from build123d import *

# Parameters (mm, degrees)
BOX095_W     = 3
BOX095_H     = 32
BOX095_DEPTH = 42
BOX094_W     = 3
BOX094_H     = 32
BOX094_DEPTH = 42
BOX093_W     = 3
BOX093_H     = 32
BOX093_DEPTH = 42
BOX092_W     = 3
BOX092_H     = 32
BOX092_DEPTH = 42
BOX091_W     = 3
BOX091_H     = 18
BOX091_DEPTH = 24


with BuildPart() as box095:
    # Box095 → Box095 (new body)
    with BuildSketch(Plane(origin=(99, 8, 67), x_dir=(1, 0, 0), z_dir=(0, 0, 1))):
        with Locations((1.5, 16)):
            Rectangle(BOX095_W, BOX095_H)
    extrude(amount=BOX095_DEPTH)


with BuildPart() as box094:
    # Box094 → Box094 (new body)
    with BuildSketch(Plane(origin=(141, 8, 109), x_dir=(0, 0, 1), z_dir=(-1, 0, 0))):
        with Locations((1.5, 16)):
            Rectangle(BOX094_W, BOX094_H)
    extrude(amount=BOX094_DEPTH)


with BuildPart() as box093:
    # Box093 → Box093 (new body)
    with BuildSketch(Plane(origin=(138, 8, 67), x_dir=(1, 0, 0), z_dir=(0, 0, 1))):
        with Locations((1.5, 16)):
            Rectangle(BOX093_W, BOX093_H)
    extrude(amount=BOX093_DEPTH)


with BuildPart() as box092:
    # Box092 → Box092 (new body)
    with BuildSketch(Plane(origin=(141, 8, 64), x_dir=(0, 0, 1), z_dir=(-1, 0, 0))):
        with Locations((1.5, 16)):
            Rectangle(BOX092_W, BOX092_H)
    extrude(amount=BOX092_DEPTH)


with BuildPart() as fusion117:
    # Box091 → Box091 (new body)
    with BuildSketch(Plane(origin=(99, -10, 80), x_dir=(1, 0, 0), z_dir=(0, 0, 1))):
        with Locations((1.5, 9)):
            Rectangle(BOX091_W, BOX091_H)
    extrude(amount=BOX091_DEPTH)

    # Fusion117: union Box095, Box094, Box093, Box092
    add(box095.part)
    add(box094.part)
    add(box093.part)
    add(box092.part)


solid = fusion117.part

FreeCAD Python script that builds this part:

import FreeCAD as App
import Part
import Sketcher
from FreeCAD import Vector
Q = App.Units.Quantity


def add_polygon(sketch, points):
    """Adds a closed chain of lines whose ends are joined by coincident constraints."""
    first, n = sketch.GeometryCount, len(points)
    for a, b in zip(points, points[1:] + points[:1]):
        sketch.addGeometry(Part.LineSegment(App.Vector(*a, 0), App.Vector(*b, 0)), False)
    for i in range(n):
        sketch.addConstraint(Sketcher.Constraint("Coincident", first + i, 2, first + (i + 1) % n, 1))

doc = App.newDocument("Part")
body = doc.addObject("PartDesign::Body", "Body")

# Sketch on XY plane
sketch1 = doc.addObject("Sketcher::SketchObject", "Sketch")
body.addObject(sketch1)
sketch1.AttachmentSupport = (doc.XY_Plane, [""])
sketch1.MapMode = "FlatFace"
sketch1.AttachmentOffset = App.Placement(Vector(0, 0, 67), App.Rotation())
add_polygon(sketch1, [(99, 40), (99, 8), (102, 8), (102, 40)])  # lines 0-3
sketch1.addConstraint([
    Sketcher.Constraint("Vertical", 0),
    Sketcher.Constraint("Horizontal", 1),
    Sketcher.Constraint("Vertical", 2),
    Sketcher.Constraint("Horizontal", 3),
    Sketcher.Constraint("DistanceX", 1, 1, 1, 2, Q("3 mm")),
    Sketcher.Constraint("DistanceY", 0, 2, 0, 1, Q("32 mm")),
    Sketcher.Constraint("DistanceX", -1, 1, 0, 2, Q("99 mm")),
    Sketcher.Constraint("DistanceY", -1, 1, 0, 2, Q("8 mm")),
])
pad1 = doc.addObject("PartDesign::Pad", "Pad")
body.addObject(pad1)
pad1.Profile = sketch1
pad1.Length = 42
body2 = doc.addObject("PartDesign::Body", "Body001")

# Sketch on YZ plane
sketch2 = doc.addObject("Sketcher::SketchObject", "Sketch001")
body2.addObject(sketch2)
sketch2.AttachmentSupport = (doc.getObject("YZ_Plane001"), [""])
sketch2.MapMode = "FlatFace"
sketch2.AttachmentOffset = App.Placement(Vector(0, 0, 141), App.Rotation())
add_polygon(sketch2, [(40, 109), (8, 109), (8, 112), (40, 112)])  # lines 0-3
sketch2.addConstraint([
    Sketcher.Constraint("Horizontal", 0),
    Sketcher.Constraint("Vertical", 1),
    Sketcher.Constraint("Horizontal", 2),
    Sketcher.Constraint("Vertical", 3),
    Sketcher.Constraint("DistanceX", 0, 2, 0, 1, Q("32 mm")),
    Sketcher.Constraint("DistanceY", 1, 1, 1, 2, Q("3 mm")),
    Sketcher.Constraint("DistanceX", -1, 1, 0, 2, Q("8 mm")),
    Sketcher.Constraint("DistanceY", -1, 1, 0, 2, Q("109 mm")),
])
pad2 = doc.addObject("PartDesign::Pad", "Pad001")
body2.addObject(pad2)
pad2.Profile = sketch2
pad2.Length = 42
pad2.Reversed = True
body3 = doc.addObject("PartDesign::Body", "Body002")

# Sketch on XY plane
sketch3 = doc.addObject("Sketcher::SketchObject", "Sketch002")
body3.addObject(sketch3)
sketch3.AttachmentSupport = (doc.getObject("XY_Plane002"), [""])
sketch3.MapMode = "FlatFace"
sketch3.AttachmentOffset = App.Placement(Vector(0, 0, 67), App.Rotation())
add_polygon(sketch3, [(138, 40), (138, 8), (141, 8), (141, 40)])  # lines 0-3
sketch3.addConstraint([
    Sketcher.Constraint("Vertical", 0),
    Sketcher.Constraint("Horizontal", 1),
    Sketcher.Constraint("Vertical", 2),
    Sketcher.Constraint("Horizontal", 3),
    Sketcher.Constraint("DistanceX", 1, 1, 1, 2, Q("3 mm")),
    Sketcher.Constraint("DistanceY", 0, 2, 0, 1, Q("32 mm")),
    Sketcher.Constraint("DistanceX", -1, 1, 0, 2, Q("138 mm")),
    Sketcher.Constraint("DistanceY", -1, 1, 0, 2, Q("8 mm")),
])
pad3 = doc.addObject("PartDesign::Pad", "Pad002")
body3.addObject(pad3)
pad3.Profile = sketch3
pad3.Length = 42
body4 = doc.addObject("PartDesign::Body", "Body003")

# Sketch on YZ plane
sketch4 = doc.addObject("Sketcher::SketchObject", "Sketch003")
body4.addObject(sketch4)
sketch4.AttachmentSupport = (doc.getObject("YZ_Plane003"), [""])
sketch4.MapMode = "FlatFace"
sketch4.AttachmentOffset = App.Placement(Vector(0, 0, 141), App.Rotation())
add_polygon(sketch4, [(40, 64), (8, 64), (8, 67), (40, 67)])  # lines 0-3
sketch4.addConstraint([
    Sketcher.Constraint("Horizontal", 0),
    Sketcher.Constraint("Vertical", 1),
    Sketcher.Constraint("Horizontal", 2),
    Sketcher.Constraint("Vertical", 3),
    Sketcher.Constraint("DistanceX", 0, 2, 0, 1, Q("32 mm")),
    Sketcher.Constraint("DistanceY", 1, 1, 1, 2, Q("3 mm")),
    Sketcher.Constraint("DistanceX", -1, 1, 0, 2, Q("8 mm")),
    Sketcher.Constraint("DistanceY", -1, 1, 0, 2, Q("64 mm")),
])
pad4 = doc.addObject("PartDesign::Pad", "Pad003")
body4.addObject(pad4)
pad4.Profile = sketch4
pad4.Length = 42
pad4.Reversed = True
body5 = doc.addObject("PartDesign::Body", "Body004")

# Sketch on XY plane
sketch5 = doc.addObject("Sketcher::SketchObject", "Sketch004")
body5.addObject(sketch5)
sketch5.AttachmentSupport = (doc.getObject("XY_Plane004"), [""])
sketch5.MapMode = "FlatFace"
sketch5.AttachmentOffset = App.Placement(Vector(0, 0, 80), App.Rotation())
add_polygon(sketch5, [(99, 8), (99, -10), (102, -10), (102, 8)])  # lines 0-3
sketch5.addConstraint([
    Sketcher.Constraint("Vertical", 0),
    Sketcher.Constraint("Horizontal", 1),
    Sketcher.Constraint("Vertical", 2),
    Sketcher.Constraint("Horizontal", 3),
    Sketcher.Constraint("DistanceX", 1, 1, 1, 2, Q("3 mm")),
    Sketcher.Constraint("DistanceY", 0, 2, 0, 1, Q("18 mm")),
    Sketcher.Constraint("DistanceX", -1, 1, 0, 2, Q("99 mm")),
    Sketcher.Constraint("DistanceY", 0, 2, -1, 1, Q("10 mm")),
])
pad5 = doc.addObject("PartDesign::Pad", "Pad004")
body5.addObject(pad5)
pad5.Profile = sketch5
pad5.Length = 24
doc.recompute()

boolean = doc.addObject("PartDesign::Boolean", "Boolean")
body5.addObject(boolean)
boolean.Type = "Fuse"
boolean.addObjects([body])
doc.recompute()

boolean2 = doc.addObject("PartDesign::Boolean", "Boolean001")
body5.addObject(boolean2)
boolean2.Type = "Fuse"
boolean2.addObjects([body2])
doc.recompute()

boolean3 = doc.addObject("PartDesign::Boolean", "Boolean002")
body5.addObject(boolean3)
boolean3.Type = "Fuse"
boolean3.addObjects([body3])
doc.recompute()

boolean4 = doc.addObject("PartDesign::Boolean", "Boolean003")
body5.addObject(boolean4)
boolean4.Type = "Fuse"
boolean4.addObjects([body4])

doc.recompute()
